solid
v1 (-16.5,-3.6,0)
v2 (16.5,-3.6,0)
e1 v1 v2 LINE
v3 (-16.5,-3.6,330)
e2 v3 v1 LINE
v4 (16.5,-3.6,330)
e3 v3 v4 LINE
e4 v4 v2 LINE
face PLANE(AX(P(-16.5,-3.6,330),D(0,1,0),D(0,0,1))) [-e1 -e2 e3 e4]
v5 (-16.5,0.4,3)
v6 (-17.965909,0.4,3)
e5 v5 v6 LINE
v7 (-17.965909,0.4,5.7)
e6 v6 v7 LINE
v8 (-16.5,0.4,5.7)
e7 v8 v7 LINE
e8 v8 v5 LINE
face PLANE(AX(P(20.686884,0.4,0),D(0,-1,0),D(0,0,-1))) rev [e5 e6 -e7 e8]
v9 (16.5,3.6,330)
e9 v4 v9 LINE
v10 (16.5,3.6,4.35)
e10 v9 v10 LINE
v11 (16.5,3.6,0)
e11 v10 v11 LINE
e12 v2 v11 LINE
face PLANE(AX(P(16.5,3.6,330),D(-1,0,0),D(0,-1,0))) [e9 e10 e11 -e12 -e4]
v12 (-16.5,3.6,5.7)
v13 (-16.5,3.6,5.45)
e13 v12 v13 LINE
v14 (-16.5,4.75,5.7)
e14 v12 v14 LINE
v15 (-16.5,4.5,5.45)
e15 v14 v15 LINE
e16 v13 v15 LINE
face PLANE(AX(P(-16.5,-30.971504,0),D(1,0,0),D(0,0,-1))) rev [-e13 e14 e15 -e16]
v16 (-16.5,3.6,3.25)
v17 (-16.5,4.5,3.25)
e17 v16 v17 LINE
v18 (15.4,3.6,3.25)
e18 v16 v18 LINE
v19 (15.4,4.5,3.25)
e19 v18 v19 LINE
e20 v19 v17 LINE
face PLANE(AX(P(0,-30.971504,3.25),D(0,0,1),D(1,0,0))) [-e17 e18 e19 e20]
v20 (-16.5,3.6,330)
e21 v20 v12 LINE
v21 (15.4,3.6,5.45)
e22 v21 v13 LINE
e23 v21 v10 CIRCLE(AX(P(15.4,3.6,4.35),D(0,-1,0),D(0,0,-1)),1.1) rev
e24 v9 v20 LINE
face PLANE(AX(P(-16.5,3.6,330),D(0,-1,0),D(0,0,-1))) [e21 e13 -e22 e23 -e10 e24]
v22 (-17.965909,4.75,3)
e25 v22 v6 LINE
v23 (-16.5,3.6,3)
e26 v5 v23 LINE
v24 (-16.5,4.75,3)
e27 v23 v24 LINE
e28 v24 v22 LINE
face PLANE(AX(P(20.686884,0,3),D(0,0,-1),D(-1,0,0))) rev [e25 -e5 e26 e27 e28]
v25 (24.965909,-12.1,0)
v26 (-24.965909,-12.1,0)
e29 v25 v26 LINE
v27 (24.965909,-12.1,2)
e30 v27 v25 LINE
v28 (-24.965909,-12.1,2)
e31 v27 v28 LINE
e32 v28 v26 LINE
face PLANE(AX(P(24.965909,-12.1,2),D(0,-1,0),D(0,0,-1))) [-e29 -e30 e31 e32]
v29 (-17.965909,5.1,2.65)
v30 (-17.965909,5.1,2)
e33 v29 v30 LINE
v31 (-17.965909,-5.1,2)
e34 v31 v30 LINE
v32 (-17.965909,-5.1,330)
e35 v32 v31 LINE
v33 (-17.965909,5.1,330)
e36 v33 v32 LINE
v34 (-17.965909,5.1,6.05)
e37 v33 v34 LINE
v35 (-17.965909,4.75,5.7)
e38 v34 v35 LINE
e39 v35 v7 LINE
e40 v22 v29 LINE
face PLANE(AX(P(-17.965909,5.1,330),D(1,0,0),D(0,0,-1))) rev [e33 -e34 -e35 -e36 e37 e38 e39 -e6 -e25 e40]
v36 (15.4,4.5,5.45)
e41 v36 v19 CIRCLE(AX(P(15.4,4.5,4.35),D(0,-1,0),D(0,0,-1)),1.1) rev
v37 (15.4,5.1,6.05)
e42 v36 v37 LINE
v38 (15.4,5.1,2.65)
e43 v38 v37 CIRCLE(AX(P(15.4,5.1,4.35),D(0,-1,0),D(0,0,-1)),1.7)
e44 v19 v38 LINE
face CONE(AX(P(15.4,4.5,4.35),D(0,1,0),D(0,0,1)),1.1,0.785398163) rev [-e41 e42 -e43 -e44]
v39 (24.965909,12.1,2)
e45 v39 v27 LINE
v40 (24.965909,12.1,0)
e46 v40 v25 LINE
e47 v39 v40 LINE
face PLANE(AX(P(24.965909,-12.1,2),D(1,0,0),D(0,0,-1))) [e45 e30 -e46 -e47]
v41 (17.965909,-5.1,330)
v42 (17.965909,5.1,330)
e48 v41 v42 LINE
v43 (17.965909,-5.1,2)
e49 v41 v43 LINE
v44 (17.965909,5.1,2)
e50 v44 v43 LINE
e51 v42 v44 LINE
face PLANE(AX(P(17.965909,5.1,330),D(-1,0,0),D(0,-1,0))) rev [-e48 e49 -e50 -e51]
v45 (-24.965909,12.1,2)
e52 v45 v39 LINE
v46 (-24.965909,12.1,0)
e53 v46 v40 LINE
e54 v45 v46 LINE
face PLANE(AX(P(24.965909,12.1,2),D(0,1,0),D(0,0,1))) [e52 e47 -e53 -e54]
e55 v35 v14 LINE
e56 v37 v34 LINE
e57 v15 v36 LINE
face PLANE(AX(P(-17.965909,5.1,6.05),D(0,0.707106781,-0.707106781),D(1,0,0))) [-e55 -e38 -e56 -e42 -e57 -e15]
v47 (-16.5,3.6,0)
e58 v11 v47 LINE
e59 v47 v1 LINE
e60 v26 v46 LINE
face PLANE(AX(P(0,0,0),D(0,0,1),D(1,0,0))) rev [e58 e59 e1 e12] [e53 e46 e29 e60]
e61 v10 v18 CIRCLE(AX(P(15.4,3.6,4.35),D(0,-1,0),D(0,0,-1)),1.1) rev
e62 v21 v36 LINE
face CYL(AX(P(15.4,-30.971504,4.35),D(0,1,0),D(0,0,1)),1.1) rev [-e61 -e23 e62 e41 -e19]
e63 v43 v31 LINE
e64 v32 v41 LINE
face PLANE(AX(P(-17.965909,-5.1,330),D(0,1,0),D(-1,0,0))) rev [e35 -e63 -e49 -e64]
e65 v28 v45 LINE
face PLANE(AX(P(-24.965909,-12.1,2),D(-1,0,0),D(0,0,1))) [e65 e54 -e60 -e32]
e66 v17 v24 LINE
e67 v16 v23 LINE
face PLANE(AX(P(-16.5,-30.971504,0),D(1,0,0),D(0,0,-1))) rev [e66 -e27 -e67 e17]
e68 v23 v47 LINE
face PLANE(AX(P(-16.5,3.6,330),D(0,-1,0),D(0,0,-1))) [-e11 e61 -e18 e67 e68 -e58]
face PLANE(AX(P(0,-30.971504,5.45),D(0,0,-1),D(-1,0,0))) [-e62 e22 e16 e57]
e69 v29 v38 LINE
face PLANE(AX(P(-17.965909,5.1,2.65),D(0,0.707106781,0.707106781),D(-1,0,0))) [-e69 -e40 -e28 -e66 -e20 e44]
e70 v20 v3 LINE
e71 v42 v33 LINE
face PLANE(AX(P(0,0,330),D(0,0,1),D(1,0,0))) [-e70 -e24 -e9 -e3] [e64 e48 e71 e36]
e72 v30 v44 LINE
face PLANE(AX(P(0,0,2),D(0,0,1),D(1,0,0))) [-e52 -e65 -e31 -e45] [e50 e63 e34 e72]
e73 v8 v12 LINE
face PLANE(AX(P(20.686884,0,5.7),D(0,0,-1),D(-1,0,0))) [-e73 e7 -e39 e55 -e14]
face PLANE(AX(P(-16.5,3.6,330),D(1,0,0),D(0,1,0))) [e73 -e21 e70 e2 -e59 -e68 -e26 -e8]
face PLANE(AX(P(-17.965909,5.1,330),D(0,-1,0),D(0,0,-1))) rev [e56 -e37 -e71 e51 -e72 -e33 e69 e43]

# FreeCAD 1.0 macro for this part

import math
import FreeCAD as App
import Part
import Sketcher
from FreeCAD import Vector


def edges_at(feature, points):
    """Names of the edges that pass closest to the given points."""
    edges = feature.Shape.Edges
    near = lambda p: min(range(len(edges)), key=lambda i: edges[i].distToShape(Part.Vertex(*p))[0])
    return sorted({f"Edge{near(p) + 1}" for p in points})

doc = App.newDocument("Part")
params = doc.addObject("Spreadsheet::Sheet", "Params")
for row, (alias, value) in enumerate([
    ("sketch1_width", "33 mm"),
    ("sketch1_height", "10.2 mm"),
    ("sketch1_height2", "7.2 mm"),
    ("pad1_length", "330 mm"),
    ("sketch2_width", "3.2 mm"),
    ("sketch2_height", "2.7 mm"),
    ("pocket1_length", "34.465909 mm"),
    ("sketch3_radius", "1.1 mm"),
    ("sketch3_width", "31.9 mm"),
    ("sketch3_height", "2.7 mm"),
    ("pocket2_length", "1.5 mm"),
    ("chamfer_size", "0.6 mm"),
    ("sketch4_height", "24.2 mm"),
    ("sketch4_height2", "10.2 mm"),
    ("pad2_length", "2 mm"),
], start=1):
    params.set(f"A{row}", alias)
    params.set(f"B{row}", "=" + value)
    params.setAlias(f"B{row}", alias)

body = doc.addObject("PartDesign::Body", "Body")

# Sketch on XY plane
sketch1 = doc.addObject("Sketcher::SketchObject", "Sketch")
body.addObject(sketch1)
sketch1.AttachmentSupport = (doc.XY_Plane, [""])
sketch1.MapMode = "FlatFace"
sketch1.addGeometry(Part.LineSegment(Vector(-17.965909, 5.1, 0), Vector(-17.965909, -5.1, 0)), False)
sketch1.addGeometry(Part.LineSegment(Vector(-17.965909, -5.1, 0), Vector(17.965909, -5.1, 0)), False)
sketch1.addGeometry(Part.LineSegment(Vector(17.965909, -5.1, 0), Vector(17.965909, 5.1, 0)), False)
sketch1.addGeometry(Part.LineSegment(Vector(17.965909, 5.1, 0), Vector(-17.965909, 5.1, 0)), False)
sketch1.addGeometry(Part.LineSegment(Vector(16.5, -3.6, 0), Vector(-16.5, -3.6, 0)), False)
sketch1.addGeometry(Part.LineSegment(Vector(-16.5, -3.6, 0), Vector(-16.5, 3.6, 0)), False)
sketch1.addGeometry(Part.LineSegment(Vector(-16.5, 3.6, 0), Vector(16.5, 3.6, 0)), False)
sketch1.addGeometry(Part.LineSegment(Vector(16.5, 3.6, 0), Vector(16.5, -3.6, 0)), False)
sketch1.addConstraint(Sketcher.Constraint("Coincident", 0, 2, 1, 1))
sketch1.addConstraint(Sketcher.Constraint("Coincident", 1, 2, 2, 1))
sketch1.addConstraint(Sketcher.Constraint("Coincident", 2, 2, 3, 1))
sketch1.addConstraint(Sketcher.Constraint("Coincident", 3, 2, 0, 1))
sketch1.addConstraint(Sketcher.Constraint("Coincident", 4, 2, 5, 1))
sketch1.addConstraint(Sketcher.Constraint("Coincident", 5, 2, 6, 1))
sketch1.addConstraint(Sketcher.Constraint("Coincident", 6, 2, 7, 1))
sketch1.addConstraint(Sketcher.Constraint("Coincident", 7, 2, 4, 1))
sketch1.addConstraint(Sketcher.Constraint("Vertical", 0))
sketch1.addConstraint(Sketcher.Constraint("Horizontal", 1))
sketch1.addConstraint(Sketcher.Constraint("Vertical", 2))
sketch1.addConstraint(Sketcher.Constraint("Horizontal", 3))
sketch1.addConstraint(Sketcher.Constraint("Horizontal", 4))
sketch1.addConstraint(Sketcher.Constraint("Vertical", 5))
sketch1.addConstraint(Sketcher.Constraint("Horizontal", 6))
sketch1.addConstraint(Sketcher.Constraint("Vertical", 7))
sketch1.addConstraint(Sketcher.Constraint("Symmetric", 0, 2, 2, 2, -1, 1))
sketch1.addConstraint(Sketcher.Constraint("Symmetric", 4, 2, 6, 2, -1, 1))
sketch1.addConstraint(Sketcher.Constraint("DistanceX", 4, 2, 4, 1, 33.0))
sketch1.addConstraint(Sketcher.Constraint("DistanceY", 0, 2, 0, 1, 10.2))
sketch1.addConstraint(Sketcher.Constraint("DistanceY", 5, 1, 5, 2, 7.2))
sketch1.addConstraint(Sketcher.Constraint("DistanceX", 1, 1, 1, 2, 35.931818))
sketch1.setExpression("Constraints[18]", "Params.sketch1_width")
sketch1.setExpression("Constraints[19]", "Params.sketch1_height")
sketch1.setExpression("Constraints[20]", "Params.sketch1_height2")
pad1 = doc.addObject("PartDesign::Pad", "Pad")
body.addObject(pad1)
pad1.Profile = sketch1
pad1.setExpression("Length", "Params.pad1_length")

# Sketch on YZ plane
sketch2 = doc.addObject("Sketcher::SketchObject", "Sketch001")
body.addObject(sketch2)
sketch2.AttachmentSupport = (doc.YZ_Plane, [""])
sketch2.MapMode = "FlatFace"
sketch2.AttachmentOffset = App.Placement(Vector(0, 0, -17.965909), App.Rotation())
sketch2.addGeometry(Part.LineSegment(Vector(3.6, 3, 0), Vector(0.4, 3, 0)), False)
sketch2.addGeometry(Part.LineSegment(Vector(0.4, 3, 0), Vector(0.4, 5.7, 0)), False)
sketch2.addGeometry(Part.LineSegment(Vector(0.4, 5.7, 0), Vector(3.6, 5.7, 0)), False)
sketch2.addGeometry(Part.LineSegment(Vector(3.6, 5.7, 0), Vector(3.6, 3, 0)), False)
sketch2.addConstraint(Sketcher.Constraint("Coincident", 0, 2, 1, 1))
sketch2.addConstraint(Sketcher.Constraint("Coincident", 1, 2, 2, 1))
sketch2.addConstraint(Sketcher.Constraint("Coincident", 2, 2, 3, 1))
sketch2.addConstraint(Sketcher.Constraint("Coincident", 3, 2, 0, 1))
sketch2.addConstraint(Sketcher.Constraint("Horizontal", 0))
sketch2.addConstraint(Sketcher.Constraint("Vertical", 1))
sketch2.addConstraint(Sketcher.Constraint("Horizontal", 2))
sketch2.addConstraint(Sketcher.Constraint("Vertical", 3))
sketch2.addConstraint(Sketcher.Constraint("DistanceX", 0, 2, 0, 1, 3.2))
sketch2.addConstraint(Sketcher.Constraint("DistanceY", 1, 1, 1, 2, 2.7))
sketch2.addConstraint(Sketcher.Constraint("DistanceY", -1, 1, 0, 2, 3.0))
sketch2.addConstraint(Sketcher.Constraint("DistanceX", -1, 1, 0, 2, 0.4))
sketch2.setExpression("Constraints[8]", "Params.sketch2_width")
sketch2.setExpression("Constraints[9]", "Params.sketch2_height")
pocket1 = doc.addObject("PartDesign::Pocket", "Pocket")
body.addObject(pocket1)
pocket1.Profile = sketch2
pocket1.setExpression("Length", "Params.pocket1_length")
pocket1.Reversed = True

# Sketch on XZ plane
sketch3 = doc.addObject("Sketcher::SketchObject", "Sketch002")
body.addObject(sketch3)
sketch3.AttachmentSupport = (doc.XZ_Plane, [""])
sketch3.MapMode = "FlatFace"
sketch3.AttachmentOffset = App.Placement(Vector(0, 0, -5.1), App.Rotation())
sketch3.addGeometry(Part.LineSegment(Vector(-16.5, 5.45, 0), Vector(15.4, 5.45, 0)), False)
sketch3.addGeometry(Part.ArcOfCircle(Part.Circle(Vector(15.4, 4.35, 0), Vector(0, 0, 1), 1.1), math.radians(-90), math.radians(90)), False)
sketch3.addGeometry(Part.LineSegment(Vector(15.4, 3.25, 0), Vector(-16.5, 3.25, 0)), False)
sketch3.addGeometry(Part.LineSegment(Vector(-16.5, 3.25, 0), Vector(-16.5, 3, 0)), False)
sketch3.addGeometry(Part.LineSegment(Vector(-16.5, 3, 0), Vector(-17.965909, 3, 0)), False)
sketch3.addGeometry(Part.LineSegment(Vector(-17.965909, 3, 0), Vector(-17.965909, 5.7, 0)), False)
sketch3.addGeometry(Part.LineSegment(Vector(-17.965909, 5.7, 0), Vector(-16.5, 5.7, 0)), False)
sketch3.addGeometry(Part.LineSegment(Vector(-16.5, 5.7, 0), Vector(-16.5, 5.45, 0)), False)
sketch3.addConstraint(Sketcher.Constraint("Tangent", 0, 2, 1, 2))
sketch3.addConstraint(Sketcher.Constraint("Tangent", 1, 1, 2, 1))
sketch3.addConstraint(Sketcher.Constraint("Coincident", 2, 2, 3, 1))
sketch3.addConstraint(Sketcher.Constraint("Coincident", 3, 2, 4, 1))
sketch3.addConstraint(Sketcher.Constraint("Coincident", 4, 2, 5, 1))
sketch3.addConstraint(Sketcher.Constraint("Coincident", 5, 2, 6, 1))
sketch3.addConstraint(Sketcher.Constraint("Coincident", 6, 2, 7, 1))
sketch3.addConstraint(Sketcher.Constraint("Coincident", 7, 2, 0, 1))
sketch3.addConstraint(Sketcher.Constraint("Horizontal", 0))
sketch3.addConstraint(Sketcher.Constraint("Horizontal", 2))
sketch3.addConstraint(Sketcher.Constraint("Vertical", 3))
sketch3.addConstraint(Sketcher.Constraint("Horizontal", 4))
sketch3.addConstraint(Sketcher.Constraint("Vertical", 5))
sketch3.addConstraint(Sketcher.Constraint("Horizontal", 6))
sketch3.addConstraint(Sketcher.Constraint("Vertical", 7))
sketch3.addConstraint(Sketcher.Constraint("Vertical", 3, 2, 6, 2))
sketch3.addConstraint(Sketcher.Constraint("Equal", 3, 7))
sketch3.addConstraint(Sketcher.Constraint("Radius", 1, 1.1))
sketch3.addConstraint(Sketcher.Constraint("DistanceX", 0, 1, 0, 2, 31.9))
sketch3.addConstraint(Sketcher.Constraint("DistanceY", 5, 1, 5, 2, 2.7))
sketch3.addConstraint(Sketcher.Constraint("DistanceY", -1, 1, 3, 2, 3.0))
sketch3.addConstraint(Sketcher.Constraint("DistanceX", -1, 1, 1, 3, 15.4))
sketch3.addConstraint(Sketcher.Constraint("DistanceX", 4, 2, 4, 1, 1.465909))
sketch3.setExpression("Constraints[17]", "Params.sketch3_radius")
sketch3.setExpression("Constraints[18]", "Params.sketch3_width")
sketch3.setExpression("Constraints[19]", "Params.sketch3_height")
pocket2 = doc.addObject("PartDesign::Pocket", "Pocket001")
body.addObject(pocket2)
pocket2.Profile = sketch3
pocket2.setExpression("Length", "Params.pocket2_length")
pocket2.Reversed = True
doc.recompute()

chamfer = doc.addObject("PartDesign::Chamfer", "Chamfer")
body.addObject(chamfer)
chamfer.Base = (pocket2, edges_at(pocket2, [(-0.55, 5.1, 3.25), (16.5, 5.1, 4.35), (-0.55, 5.1, 5.45)]))
chamfer.setExpression("Size", "Params.chamfer_size")

# Sketch on XY plane
sketch4 = doc.addObject("Sketcher::SketchObject", "Sketch003")
body.addObject(sketch4)
sketch4.AttachmentSupport = (doc.XY_Plane, [""])
sketch4.MapMode = "FlatFace"
sketch4.addGeometry(Part.LineSegment(Vector(24.965909, 12.1, 0), Vector(24.965909, -12.1, 0)), False)
sketch4.addGeometry(Part.LineSegment(Vector(24.965909, -12.1, 0), Vector(-24.965909, -12.1, 0)), False)
sketch4.addGeometry(Part.LineSegment(Vector(-24.965909, -12.1, 0), Vector(-24.965909, 12.1, 0)), False)
sketch4.addGeometry(Part.LineSegment(Vector(-24.965909, 12.1, 0), Vector(24.965909, 12.1, 0)), False)
sketch4.addGeometry(Part.LineSegment(Vector(-17.965909, -5.1, 0), Vector(17.965909, -5.1, 0)), False)
sketch4.addGeometry(Part.LineSegment(Vector(17.965909, -5.1, 0), Vector(17.965909, 5.1, 0)), False)
sketch4.addGeometry(Part.LineSegment(Vector(17.965909, 5.1, 0), Vector(-17.965909, 5.1, 0)), False)
sketch4.addGeometry(Part.LineSegment(Vector(-17.965909, 5.1, 0), Vector(-17.965909, -5.1, 0)), False)
sketch4.addConstraint(Sketcher.Constraint("Coincident", 0, 2, 1, 1))
sketch4.addConstraint(Sketcher.Constraint("Coincident", 1, 2, 2, 1))
sketch4.addConstraint(Sketcher.Constraint("Coincident", 2, 2, 3, 1))
sketch4.addConstraint(Sketcher.Constraint("Coincident", 3, 2, 0, 1))
sketch4.addConstraint(Sketcher.Constraint("Coincident", 4, 2, 5, 1))
sketch4.addConstraint(Sketcher.Constraint("Coincident", 5, 2, 6, 1))
sketch4.addConstraint(Sketcher.Constraint("Coincident", 6, 2, 7, 1))
sketch4.addConstraint(Sketcher.Constraint("Coincident", 7, 2, 4, 1))
sketch4.addConstraint(Sketcher.Constraint("Vertical", 0))
sketch4.addConstraint(Sketcher.Constraint("Horizontal", 1))
sketch4.addConstraint(Sketcher.Constraint("Vertical", 2))
sketch4.addConstraint(Sketcher.Constraint("Horizontal", 3))
sketch4.addConstraint(Sketcher.Constraint("Horizontal", 4))
sketch4.addConstraint(Sketcher.Constraint("Vertical", 5))
sketch4.addConstraint(Sketcher.Constraint("Horizontal", 6))
sketch4.addConstraint(Sketcher.Constraint("Vertical", 7))
sketch4.addConstraint(Sketcher.Constraint("Symmetric", 0, 2, 2, 2, -1, 1))
sketch4.addConstraint(Sketcher.Constraint("Symmetric", 4, 2, 6, 2, -1, 1))
sketch4.addConstraint(Sketcher.Constraint("DistanceY", 0, 2, 0, 1, 24.2))
sketch4.addConstraint(Sketcher.Constraint("DistanceY", 5, 1, 5, 2, 10.2))
sketch4.addConstraint(Sketcher.Constraint("DistanceX", 4, 2, 0, 2, 7.0))
sketch4.addConstraint(Sketcher.Constraint("DistanceX", 1, 2, 1, 1, 49.931818))
sketch4.setExpression("Constraints[18]", "Params.sketch4_height")
sketch4.setExpression("Constraints[19]", "Params.sketch4_height2")
pad2 = doc.addObject("PartDesign::Pad", "Pad001")
body.addObject(pad2)
pad2.Profile = sketch4
pad2.setExpression("Length", "Params.pad2_length")

doc.recompute()
